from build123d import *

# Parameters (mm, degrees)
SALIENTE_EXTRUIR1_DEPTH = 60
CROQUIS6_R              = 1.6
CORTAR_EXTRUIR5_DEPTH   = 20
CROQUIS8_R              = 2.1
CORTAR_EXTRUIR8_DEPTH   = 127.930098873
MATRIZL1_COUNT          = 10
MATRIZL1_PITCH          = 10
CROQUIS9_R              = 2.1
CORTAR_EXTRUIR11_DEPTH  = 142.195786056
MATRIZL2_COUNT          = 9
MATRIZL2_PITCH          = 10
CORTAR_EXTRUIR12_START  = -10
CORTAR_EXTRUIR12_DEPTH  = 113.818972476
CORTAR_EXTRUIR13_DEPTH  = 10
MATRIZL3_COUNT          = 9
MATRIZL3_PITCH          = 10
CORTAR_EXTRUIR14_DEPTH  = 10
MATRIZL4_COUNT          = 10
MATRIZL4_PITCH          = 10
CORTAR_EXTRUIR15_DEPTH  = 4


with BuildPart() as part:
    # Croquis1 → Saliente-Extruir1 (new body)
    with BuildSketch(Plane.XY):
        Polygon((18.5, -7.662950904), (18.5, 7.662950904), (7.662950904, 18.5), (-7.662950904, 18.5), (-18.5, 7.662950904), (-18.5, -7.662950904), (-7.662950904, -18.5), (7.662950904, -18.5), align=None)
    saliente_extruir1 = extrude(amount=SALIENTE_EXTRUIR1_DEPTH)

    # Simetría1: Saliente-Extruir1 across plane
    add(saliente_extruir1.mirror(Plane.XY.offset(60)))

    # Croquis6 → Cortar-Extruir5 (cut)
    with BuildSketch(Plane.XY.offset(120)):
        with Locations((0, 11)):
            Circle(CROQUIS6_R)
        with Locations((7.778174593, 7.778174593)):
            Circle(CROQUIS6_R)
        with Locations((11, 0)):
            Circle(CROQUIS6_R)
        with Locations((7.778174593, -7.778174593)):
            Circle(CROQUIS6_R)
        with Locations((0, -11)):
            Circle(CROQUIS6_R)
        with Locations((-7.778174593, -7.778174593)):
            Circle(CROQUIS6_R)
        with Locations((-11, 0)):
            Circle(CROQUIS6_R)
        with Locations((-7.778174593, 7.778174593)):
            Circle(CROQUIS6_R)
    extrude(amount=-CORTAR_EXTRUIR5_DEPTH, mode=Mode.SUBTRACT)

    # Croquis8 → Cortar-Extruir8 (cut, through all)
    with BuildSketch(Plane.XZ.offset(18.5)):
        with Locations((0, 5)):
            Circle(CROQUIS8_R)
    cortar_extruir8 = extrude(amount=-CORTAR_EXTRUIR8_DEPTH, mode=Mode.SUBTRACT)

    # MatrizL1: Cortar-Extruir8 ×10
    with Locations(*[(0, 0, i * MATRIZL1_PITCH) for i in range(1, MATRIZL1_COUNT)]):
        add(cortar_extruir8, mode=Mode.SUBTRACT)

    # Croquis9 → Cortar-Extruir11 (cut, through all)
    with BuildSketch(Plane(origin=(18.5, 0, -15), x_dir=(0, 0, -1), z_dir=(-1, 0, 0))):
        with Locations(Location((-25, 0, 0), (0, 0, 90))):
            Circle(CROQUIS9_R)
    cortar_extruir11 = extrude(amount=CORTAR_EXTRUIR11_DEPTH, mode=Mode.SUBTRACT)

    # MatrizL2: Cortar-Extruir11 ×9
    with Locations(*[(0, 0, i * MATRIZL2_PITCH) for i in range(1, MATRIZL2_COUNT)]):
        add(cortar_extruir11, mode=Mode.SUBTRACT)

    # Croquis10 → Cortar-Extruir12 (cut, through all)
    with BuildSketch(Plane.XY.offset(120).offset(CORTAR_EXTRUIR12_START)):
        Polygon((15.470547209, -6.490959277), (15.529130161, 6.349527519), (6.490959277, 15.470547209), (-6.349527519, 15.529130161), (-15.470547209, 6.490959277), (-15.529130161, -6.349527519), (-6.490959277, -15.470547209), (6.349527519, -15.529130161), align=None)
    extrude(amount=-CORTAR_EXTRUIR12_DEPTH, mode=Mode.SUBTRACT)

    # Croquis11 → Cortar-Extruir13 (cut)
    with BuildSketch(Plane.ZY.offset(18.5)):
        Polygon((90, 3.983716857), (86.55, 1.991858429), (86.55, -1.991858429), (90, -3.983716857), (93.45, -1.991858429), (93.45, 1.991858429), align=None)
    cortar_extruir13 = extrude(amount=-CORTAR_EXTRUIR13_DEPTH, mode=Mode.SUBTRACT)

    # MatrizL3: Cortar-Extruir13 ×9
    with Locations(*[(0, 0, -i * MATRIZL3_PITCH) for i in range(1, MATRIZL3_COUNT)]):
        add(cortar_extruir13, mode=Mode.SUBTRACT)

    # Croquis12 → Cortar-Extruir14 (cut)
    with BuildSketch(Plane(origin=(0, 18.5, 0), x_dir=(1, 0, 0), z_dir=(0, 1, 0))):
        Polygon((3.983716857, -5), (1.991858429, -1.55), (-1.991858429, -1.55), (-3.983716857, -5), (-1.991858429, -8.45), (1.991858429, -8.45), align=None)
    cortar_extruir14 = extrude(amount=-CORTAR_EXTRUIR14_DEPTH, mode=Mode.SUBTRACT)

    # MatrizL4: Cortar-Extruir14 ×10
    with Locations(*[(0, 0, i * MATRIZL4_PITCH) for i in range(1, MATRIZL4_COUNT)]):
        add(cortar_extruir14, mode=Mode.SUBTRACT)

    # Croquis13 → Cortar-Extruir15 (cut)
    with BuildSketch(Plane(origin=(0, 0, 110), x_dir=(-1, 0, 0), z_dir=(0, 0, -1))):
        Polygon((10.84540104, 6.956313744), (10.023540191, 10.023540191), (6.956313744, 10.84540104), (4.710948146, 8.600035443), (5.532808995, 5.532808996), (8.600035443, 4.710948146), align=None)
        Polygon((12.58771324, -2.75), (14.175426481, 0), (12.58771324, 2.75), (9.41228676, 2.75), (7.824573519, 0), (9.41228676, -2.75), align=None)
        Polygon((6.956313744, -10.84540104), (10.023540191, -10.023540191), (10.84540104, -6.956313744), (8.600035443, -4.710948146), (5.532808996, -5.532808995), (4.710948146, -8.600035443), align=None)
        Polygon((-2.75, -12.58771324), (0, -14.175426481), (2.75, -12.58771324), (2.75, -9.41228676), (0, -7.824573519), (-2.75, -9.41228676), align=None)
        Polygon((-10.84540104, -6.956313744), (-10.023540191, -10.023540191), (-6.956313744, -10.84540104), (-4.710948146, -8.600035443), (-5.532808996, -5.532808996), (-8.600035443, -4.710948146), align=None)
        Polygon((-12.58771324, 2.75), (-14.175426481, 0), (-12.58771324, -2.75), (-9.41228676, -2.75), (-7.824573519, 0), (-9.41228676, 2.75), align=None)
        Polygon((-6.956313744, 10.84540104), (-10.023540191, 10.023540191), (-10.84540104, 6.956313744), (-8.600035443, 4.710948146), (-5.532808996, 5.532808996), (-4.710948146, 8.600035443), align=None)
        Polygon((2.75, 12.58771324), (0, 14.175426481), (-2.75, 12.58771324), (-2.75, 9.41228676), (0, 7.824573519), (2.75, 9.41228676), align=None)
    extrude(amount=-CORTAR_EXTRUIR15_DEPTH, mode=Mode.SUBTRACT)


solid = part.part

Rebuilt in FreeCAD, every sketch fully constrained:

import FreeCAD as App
import Part
import Sketcher
Q = App.Units.Quantity

doc = App.newDocument("Part")
params = doc.addObject("Spreadsheet::Sheet", "Params")
for row, (alias, value) in enumerate([
    ("pad1_length", "60 mm"),
    ("sketch2_diameter", "3.2 mm"),
    ("pocket1_length", "20 mm"),
    ("sketch3_diameter", "4.2 mm"),
    ("linearpattern_pitch", "10 mm"),
    ("sketch4_diameter", "4.2 mm"),
    ("linearpattern2_pitch", "10 mm"),
    ("pocket5_length", "10 mm"),
    ("linearpattern3_pitch", "10 mm"),
    ("pocket6_length", "10 mm"),
    ("linearpattern4_pitch", "10 mm"),
    ("pocket7_length", "4 mm"),
], start=1):
    params.set(f"A{row}", alias)
    params.set(f"B{row}", "=" + value)
    params.setAlias(f"B{row}", alias)

body = doc.addObject("PartDesign::Body", "Body")

sketch1 = body.newObject("Sketcher::SketchObject", "Sketch")
sketch1.AttachmentSupport = (doc.getObject("XY_Plane"), [""])
sketch1.MapMode = "FlatFace"
sketch1.addGeometry([
    Part.LineSegment(App.Vector(18, -8, 0), App.Vector(18, 8, 0)),
    Part.LineSegment(App.Vector(18, 8, 0), App.Vector(8, 18, 0)),
    Part.LineSegment(App.Vector(8, 18, 0), App.Vector(-8, 18, 0)),
    Part.LineSegment(App.Vector(-8, 18, 0), App.Vector(-18, 8, 0)),
    Part.LineSegment(App.Vector(-18, 8, 0), App.Vector(-18, -8, 0)),
    Part.LineSegment(App.Vector(-18, -8, 0), App.Vector(-8, -18, 0)),
    Part.LineSegment(App.Vector(-8, -18, 0), App.Vector(8, -18, 0)),
    Part.LineSegment(App.Vector(8, -18, 0), App.Vector(18, -8, 0)),
], False)
sketch1.addConstraint([
    Sketcher.Constraint("Coincident", 0, 2, 1, 1),
    Sketcher.Constraint("Coincident", 1, 2, 2, 1),
    Sketcher.Constraint("Coincident", 2, 2, 3, 1),
    Sketcher.Constraint("Coincident", 3, 2, 4, 1),
    Sketcher.Constraint("Coincident", 4, 2, 5, 1),
    Sketcher.Constraint("Coincident", 5, 2, 6, 1),
    Sketcher.Constraint("Coincident", 6, 2, 7, 1),
    Sketcher.Constraint("Coincident", 7, 2, 0, 1),
    Sketcher.Constraint("Vertical", 0),
    Sketcher.Constraint("Horizontal", 2),
    Sketcher.Constraint("Vertical", 4),
    Sketcher.Constraint("Horizontal", 6),
    Sketcher.Constraint("Symmetric", 0, 2, 4, 2, -1, 1),
    Sketcher.Constraint("Symmetric", 1, 2, 5, 2, -1, 1),
    Sketcher.Constraint("Perpendicular", 1, 3),
    Sketcher.Constraint("Perpendicular", 5, 7),
    Sketcher.Constraint("Horizontal", 0, 2, 3, 2),
    Sketcher.Constraint("Horizontal", 4, 2, 7, 2),
    Sketcher.Constraint("Vertical", 2, 2, 5, 2),
    Sketcher.Constraint("Equal", 6, 0),
    Sketcher.Constraint("DistanceX", 3, 2, 0, 2, 37.0),
    Sketcher.Constraint("DistanceX", 2, 2, 2, 1, 15.325902),
])
pad1 = body.newObject("PartDesign::Pad", "Pad")
pad1.Profile = sketch1
pad1.setExpression("Length", "Params.pad1_length")
doc.recompute()

datumplane = body.newObject("PartDesign::Plane", "DatumPlane")
datumplane.AttachmentSupport = (doc.getObject("XY_Plane"), [""])
datumplane.MapMode = "FlatFace"
datumplane.AttachmentOffset = App.Placement(App.Vector(0, 0, 60), App.Rotation())
mirrored = body.newObject("PartDesign::Mirrored", "Mirrored")
mirrored.Originals = [pad1]
mirrored.MirrorPlane = (datumplane, [""])
body.Tip = mirrored

sketch2 = body.newObject("Sketcher::SketchObject", "Sketch001")
sketch2.AttachmentSupport = (doc.getObject("XY_Plane"), [""])
sketch2.MapMode = "FlatFace"
sketch2.AttachmentOffset = App.Placement(App.Vector(0, 0, 120), App.Rotation())
sketch2.addGeometry([
    Part.Circle(App.Vector(0, 11, 0), App.Vector(0, 0, 1), 1.6),
    Part.Circle(App.Vector(7.8, 7.8, 0), App.Vector(0, 0, 1), 1.6),
    Part.Circle(App.Vector(11, 0, 0), App.Vector(0, 0, 1), 1.6),
    Part.Circle(App.Vector(7.8, -7.8, 0), App.Vector(0, 0, 1), 1.6),
    Part.Circle(App.Vector(0, -11, 0), App.Vector(0, 0, 1), 1.6),
    Part.Circle(App.Vector(-7.8, -7.8, 0), App.Vector(0, 0, 1), 1.6),
    Part.Circle(App.Vector(-11, 0, 0), App.Vector(0, 0, 1), 1.6),
    Part.Circle(App.Vector(-7.8, 7.8, 0), App.Vector(0, 0, 1), 1.6),
], False)
sketch2.addConstraint([
    Sketcher.Constraint("Equal", 0, 1),
    Sketcher.Constraint("Equal", 1, 2),
    Sketcher.Constraint("Equal", 2, 3),
    Sketcher.Constraint("Equal", 3, 4),
    Sketcher.Constraint("Equal", 4, 5),
    Sketcher.Constraint("Equal", 5, 6),
    Sketcher.Constraint("Equal", 6, 7),
    Sketcher.Constraint("Symmetric", 0, 3, 4, 3, -1, 1),
    Sketcher.Constraint("Symmetric", 1, 3, 5, 3, -1, 1),
    Sketcher.Constraint("Symmetric", 2, 3, 6, 3, -1, 1),
    Sketcher.Constraint("Symmetric", 3, 3, 7, 3, -1, 1),
    Sketcher.Constraint("Symmetric", 3, 3, 5, 3, -2),
    Sketcher.Constraint("PointOnObject", 0, 3, -2),
    Sketcher.Constraint("PointOnObject", 2, 3, -1),
    Sketcher.Constraint("Diameter", 0, 3.2),
    Sketcher.Constraint("DistanceY", -1, 1, 0, 3, 11.0),
    Sketcher.Constraint("DistanceX", -1, 1, 2, 3, 11.0),
    Sketcher.Constraint("DistanceY", 3, 3, 1, 3, 15.556349),
    Sketcher.Constraint("DistanceX", 5, 3, 3, 3, 15.556349),
])
sketch2.setExpression("Constraints[14]", "Params.sketch2_diameter")
pocket1 = body.newObject("PartDesign::Pocket", "Pocket")
pocket1.Profile = sketch2
pocket1.setExpression("Length", "Params.pocket1_length")

sketch3 = body.newObject("Sketcher::SketchObject", "Sketch002")
sketch3.AttachmentSupport = (doc.getObject("XZ_Plane"), [""])
sketch3.MapMode = "FlatFace"
sketch3.AttachmentOffset = App.Placement(App.Vector(0, 0, 18.5), App.Rotation())
sketch3.addGeometry(Part.Circle(App.Vector(0, 5, 0), App.Vector(0, 0, 1), 2.1), False)
sketch3.addConstraint([
    Sketcher.Constraint("PointOnObject", 0, 3, -2),
    Sketcher.Constraint("Diameter", 0, 4.2),
    Sketcher.Constraint("DistanceY", -1, 1, 0, 3, 5.0),
])
sketch3.setExpression("Constraints[1]", "Params.sketch3_diameter")
pocket2 = body.newObject("PartDesign::Pocket", "Pocket001")
pocket2.Profile = sketch3
pocket2.Type = "ThroughAll"
doc.recompute()

linearpattern = body.newObject("PartDesign::LinearPattern", "LinearPattern")
linearpattern.Originals = [pocket2]
linearpattern.Direction = (doc.getObject("Z_Axis"), [""])
linearpattern.Mode = "offset"
linearpattern.setExpression("Offset", "Params.linearpattern_pitch")
linearpattern.Occurrences = 10
body.Tip = linearpattern

sketch4 = body.newObject("Sketcher::SketchObject", "Sketch003")
sketch4.AttachmentSupport = (doc.getObject("YZ_Plane"), [""])
sketch4.MapMode = "FlatFace"
sketch4.AttachmentOffset = App.Placement(App.Vector(0, 0, 18.5), App.Rotation())
sketch4.addGeometry(Part.Circle(App.Vector(0, 10, 0), App.Vector(0, 0, 1), 2.1), False)
sketch4.addConstraint([
    Sketcher.Constraint("PointOnObject", 0, 3, -2),
    Sketcher.Constraint("Diameter", 0, 4.2),
    Sketcher.Constraint("DistanceY", -1, 1, 0, 3, 10.0),
])
sketch4.setExpression("Constraints[1]", "Params.sketch4_diameter")
pocket3 = body.newObject("PartDesign::Pocket", "Pocket002")
pocket3.Profile = sketch4
pocket3.Type = "ThroughAll"
doc.recompute()

linearpattern2 = body.newObject("PartDesign::LinearPattern", "LinearPattern001")
linearpattern2.Originals = [pocket3]
linearpattern2.Direction = (doc.getObject("Z_Axis"), [""])
linearpattern2.Mode = "offset"
linearpattern2.setExpression("Offset", "Params.linearpattern2_pitch")
linearpattern2.Occurrences = 9
body.Tip = linearpattern2

sketch5 = body.newObject("Sketcher::SketchObject", "Sketch004")
sketch5.AttachmentSupport = (doc.getObject("XY_Plane"), [""])
sketch5.MapMode = "FlatFace"
sketch5.AttachmentOffset = App.Placement(App.Vector(0, 0, 110), App.Rotation())
sketch5.addGeometry([
    Part.LineSegment(App.Vector(15, -6, 0), App.Vector(16, 6, 0)),
    Part.LineSegment(App.Vector(16, 6, 0), App.Vector(6, 15, 0)),
    Part.LineSegment(App.Vector(6, 15, 0), App.Vector(-6, 16, 0)),
    Part.LineSegment(App.Vector(-6, 16, 0), App.Vector(-15, 6, 0)),
    Part.LineSegment(App.Vector(-15, 6, 0), App.Vector(-16, -6, 0)),
    Part.LineSegment(App.Vector(-16, -6, 0), App.Vector(-6, -15, 0)),
    Part.LineSegment(App.Vector(-6, -15, 0), App.Vector(6, -16, 0)),
    Part.LineSegment(App.Vector(6, -16, 0), App.Vector(15, -6, 0)),
], False)
sketch5.addConstraint([
    Sketcher.Constraint("Coincident", 0, 2, 1, 1),
    Sketcher.Constraint("Coincident", 1, 2, 2, 1),
    Sketcher.Constraint("Coincident", 2, 2, 3, 1),
    Sketcher.Constraint("Coincident", 3, 2, 4, 1),
    Sketcher.Constraint("Coincident", 4, 2, 5, 1),
    Sketcher.Constraint("Coincident", 5, 2, 6, 1),
    Sketcher.Constraint("Coincident", 6, 2, 7, 1),
    Sketcher.Constraint("Coincident", 7, 2, 0, 1),
    Sketcher.Constraint("Symmetric", 0, 2, 4, 2, -1, 1),
    Sketcher.Constraint("Symmetric", 1, 2, 5, 2, -1, 1),
    Sketcher.Constraint("Symmetric", 2, 2, 6, 2, -1, 1),
    Sketcher.Constraint("Symmetric", 3, 2, 7, 2, -1, 1),
    Sketcher.Constraint("Perpendicular", 0, 2),
    Sketcher.Constraint("Perpendicular", 1, 3),
    Sketcher.Constraint("Equal", 0, 1),
    Sketcher.Constraint("Equal", 1, 2),
    Sketcher.Constraint("Equal", 2, 3),
    Sketcher.Constraint("Distance", 0, 12.84062),
    Sketcher.Constraint("DistanceX", -1, 1, 0, 2, 15.52913),
    Sketcher.Constraint("DistanceX", -1, 1, 1, 2, 6.490959),
])
pocket4 = body.newObject("PartDesign::Pocket", "Pocket003")
pocket4.Profile = sketch5
pocket4.Type = "ThroughAll"

sketch6 = body.newObject("Sketcher::SketchObject", "Sketch005")
sketch6.AttachmentSupport = (doc.getObject("YZ_Plane"), [""])
sketch6.MapMode = "FlatFace"
sketch6.AttachmentOffset = App.Placement(App.Vector(0, 0, -18.5), App.Rotation())
sketch6.addGeometry([
    Part.LineSegment(App.Vector(4, 90, 0), App.Vector(2, 86.5, 0)),
    Part.LineSegment(App.Vector(2, 86.5, 0), App.Vector(-2, 86.5, 0)),
    Part.LineSegment(App.Vector(-2, 86.5, 0), App.Vector(-4, 90, 0)),
    Part.LineSegment(App.Vector(-4, 90, 0), App.Vector(-2, 93.5, 0)),
    Part.LineSegment(App.Vector(-2, 93.5, 0), App.Vector(2, 93.5, 0)),
    Part.LineSegment(App.Vector(2, 93.5, 0), App.Vector(4, 90, 0)),
], False)
sketch6.addConstraint([
    Sketcher.Constraint("Coincident", 0, 2, 1, 1),
    Sketcher.Constraint("Coincident", 1, 2, 2, 1),
    Sketcher.Constraint("Coincident", 2, 2, 3, 1),
    Sketcher.Constraint("Coincident", 3, 2, 4, 1),
    Sketcher.Constraint("Coincident", 4, 2, 5, 1),
    Sketcher.Constraint("Coincident", 5, 2, 0, 1),
    Sketcher.Constraint("Horizontal", 1),
    Sketcher.Constraint("Horizontal", 4),
    Sketcher.Constraint("Symmetric", 2, 2, 5, 2, -2),
    Sketcher.Constraint("Parallel", 0, 3),
    Sketcher.Constraint("Parallel", 2, 5),
    Sketcher.Constraint("Vertical", 1, 2, 3, 2),
    Sketcher.Constraint("Vertical", 0, 2, 4, 2),
    Sketcher.Constraint("Angle", 0, Q("-120 deg")),
    Sketcher.Constraint("DistanceY", -1, 1, 2, 2, 90.0),
    Sketcher.Constraint("DistanceY", 1, 2, 3, 2, 6.9),
    Sketcher.Constraint("DistanceX", 1, 2, 1, 1, 3.983717),
])
pocket5 = body.newObject("PartDesign::Pocket", "Pocket004")
pocket5.Profile = sketch6
pocket5.setExpression("Length", "Params.pocket5_length")
pocket5.Reversed = True
doc.recompute()

linearpattern3 = body.newObject("PartDesign::LinearPattern", "LinearPattern002")
linearpattern3.Originals = [pocket5]
linearpattern3.Direction = (doc.getObject("Z_Axis"), [""])
linearpattern3.Mode = "offset"
linearpattern3.setExpression("Offset", "Params.linearpattern3_pitch")
linearpattern3.Occurrences = 9
linearpattern3.Reversed = True
body.Tip = linearpattern3

sketch7 = body.newObject("Sketcher::SketchObject", "Sketch006")
sketch7.AttachmentSupport = (doc.getObject("XZ_Plane"), [""])
sketch7.MapMode = "FlatFace"
sketch7.AttachmentOffset = App.Placement(App.Vector(0, 0, -18.5), App.Rotation())
sketch7.addGeometry([
    Part.LineSegment(App.Vector(4, 5, 0), App.Vector(2, 1.6, 0)),
    Part.LineSegment(App.Vector(2, 1.6, 0), App.Vector(-2, 1.6, 0)),
    Part.LineSegment(App.Vector(-2, 1.6, 0), App.Vector(-4, 5, 0)),
    Part.LineSegment(App.Vector(-4, 5, 0), App.Vector(-2, 8.4, 0)),
    Part.LineSegment(App.Vector(-2, 8.4, 0), App.Vector(2, 8.4, 0)),
    Part.LineSegment(App.Vector(2, 8.4, 0), App.Vector(4, 5, 0)),
], False)
sketch7.addConstraint([
    Sketcher.Constraint("Coincident", 0, 2, 1, 1),
    Sketcher.Constraint("Coincident", 1, 2, 2, 1),
    Sketcher.Constraint("Coincident", 2, 2, 3, 1),
    Sketcher.Constraint("Coincident", 3, 2, 4, 1),
    Sketcher.Constraint("Coincident", 4, 2, 5, 1),
    Sketcher.Constraint("Coincident", 5, 2, 0, 1),
    Sketcher.Constraint("Horizontal", 1),
    Sketcher.Constraint("Horizontal", 4),
    Sketcher.Constraint("Symmetric", 2, 2, 5, 2, -2),
    Sketcher.Constraint("Parallel", 0, 3),
    Sketcher.Constraint("Parallel", 2, 5),
    Sketcher.Constraint("Vertical", 1, 2, 3, 2),
    Sketcher.Constraint("Vertical", 0, 2, 4, 2),
    Sketcher.Constraint("Angle", 0, Q("-120 deg")),
    Sketcher.Constraint("DistanceY", -1, 1, 2, 2, 5.0),
    Sketcher.Constraint("DistanceY", 1, 2, 3, 2, 6.9),
    Sketcher.Constraint("DistanceX", 1, 2, 1, 1, 3.983717),
])
pocket6 = body.newObject("PartDesign::Pocket", "Pocket005")
pocket6.Profile = sketch7
pocket6.setExpression("Length", "Params.pocket6_length")
pocket6.Reversed = True
doc.recompute()

linearpattern4 = body.newObject("PartDesign::LinearPattern", "LinearPattern003")
linearpattern4.Originals = [pocket6]
linearpattern4.Direction = (doc.getObject("Z_Axis"), [""])
linearpattern4.Mode = "offset"
linearpattern4.setExpression("Offset", "Params.linearpattern4_pitch")
linearpattern4.Occurrences = 10
body.Tip = linearpattern4

sketch8 = body.newObject("Sketcher::SketchObject", "Sketch007")
sketch8.AttachmentSupport = (doc.getObject("XY_Plane"), [""])
sketch8.MapMode = "FlatFace"
sketch8.AttachmentOffset = App.Placement(App.Vector(0, 0, 110), App.Rotation())
sketch8.addGeometry([
    Part.LineSegment(App.Vector(-10.8, 7, 0), App.Vector(-10, 10, 0)),
    Part.LineSegment(App.Vector(-10, 10, 0), App.Vector(-7, 10.8, 0)),
    Part.LineSegment(App.Vector(-7, 10.8, 0), App.Vector(-4.7, 8.6, 0)),
    Part.LineSegment(App.Vector(-4.7, 8.6, 0), App.Vector(-5.5, 5.5, 0)),
    Part.LineSegment(App.Vector(-5.5, 5.5, 0), App.Vector(-8.6, 4.7, 0)),
    Part.LineSegment(App.Vector(-8.6, 4.7, 0), App.Vector(-10.8, 7, 0)),
    Part.LineSegment(App.Vector(-12.6, -2.8, 0), App.Vector(-14.2, 0, 0)),
    Part.LineSegment(App.Vector(-14.2, 0, 0), App.Vector(-12.6, 2.8, 0)),
    Part.LineSegment(App.Vector(-12.6, 2.8, 0), App.Vector(-9.4, 2.8, 0)),
    Part.LineSegment(App.Vector(-9.4, 2.8, 0), App.Vector(-7.8, 0, 0)),
    Part.LineSegment(App.Vector(-7.8, 0, 0), App.Vector(-9.4, -2.8, 0)),
    Part.LineSegment(App.Vector(-9.4, -2.8, 0), App.Vector(-12.6, -2.8, 0)),
    Part.LineSegment(App.Vector(-7, -10.8, 0), App.Vector(-10, -10, 0)),
    Part.LineSegment(App.Vector(-10, -10, 0), App.Vector(-10.8, -7, 0)),
    Part.LineSegment(App.Vector(-10.8, -7, 0), App.Vector(-8.6, -4.7, 0)),
    Part.LineSegment(App.Vector(-8.6, -4.7, 0), App.Vector(-5.5, -5.5, 0)),
    Part.LineSegment(App.Vector(-5.5, -5.5, 0), App.Vector(-4.7, -8.6, 0)),
    Part.LineSegment(App.Vector(-4.7, -8.6, 0), App.Vector(-7, -10.8, 0)),
    Part.LineSegment(App.Vector(2.8, -12.6, 0), App.Vector(0, -14.2, 0)),
    Part.LineSegment(App.Vector(0, -14.2, 0), App.Vector(-2.8, -12.6, 0)),
    Part.LineSegment(App.Vector(-2.8, -12.6, 0), App.Vector(-2.8, -9.4, 0)),
    Part.LineSegment(App.Vector(-2.8, -9.4, 0), App.Vector(0, -7.8, 0)),
    Part.LineSegment(App.Vector(0, -7.8, 0), App.Vector(2.8, -9.4, 0)),
    Part.LineSegment(App.Vector(2.8, -9.4, 0), App.Vector(2.8, -12.6, 0)),
    Part.LineSegment(App.Vector(10.8, -7, 0), App.Vector(10, -10, 0)),
    Part.LineSegment(App.Vector(10, -10, 0), App.Vector(7, -10.8, 0)),
    Part.LineSegment(App.Vector(7, -10.8, 0), App.Vector(4.7, -8.6, 0)),
    Part.LineSegment(App.Vector(4.7, -8.6, 0), App.Vector(5.5, -5.5, 0)),
    Part.LineSegment(App.Vector(5.5, -5.5, 0), App.Vector(8.6, -4.7, 0)),
    Part.LineSegment(App.Vector(8.6, -4.7, 0), App.Vector(10.8, -7, 0)),
    Part.LineSegment(App.Vector(12.6, 2.8, 0), App.Vector(14.2, 0, 0)),
    Part.LineSegment(App.Vector(14.2, 0, 0), App.Vector(12.6, -2.8, 0)),
    Part.LineSegment(App.Vector(12.6, -2.8, 0), App.Vector(9.4, -2.8, 0)),
    Part.LineSegment(App.Vector(9.4, -2.8, 0), App.Vector(7.8, 0, 0)),
    Part.LineSegment(App.Vector(7.8, 0, 0), App.Vector(9.4, 2.8, 0)),
    Part.LineSegment(App.Vector(9.4, 2.8, 0), App.Vector(12.6, 2.8, 0)),
    Part.LineSegment(App.Vector(7, 10.8, 0), App.Vector(10, 10, 0)),
    Part.LineSegment(App.Vector(10, 10, 0), App.Vector(10.8, 7, 0)),
    Part.LineSegment(App.Vector(10.8, 7, 0), App.Vector(8.6, 4.7, 0)),
    Part.LineSegment(App.Vector(8.6, 4.7, 0), App.Vector(5.5, 5.5, 0)),
    Part.LineSegment(App.Vector(5.5, 5.5, 0), App.Vector(4.7, 8.6, 0)),
    Part.LineSegment(App.Vector(4.7, 8.6, 0), App.Vector(7, 10.8, 0)),
    Part.LineSegment(App.Vector(-2.8, 12.6, 0), App.Vector(0, 14.2, 0)),
    Part.LineSegment(App.Vector(0, 14.2, 0), App.Vector(2.8, 12.6, 0)),
    Part.LineSegment(App.Vector(2.8, 12.6, 0), App.Vector(2.8, 9.4, 0)),
    Part.LineSegment(App.Vector(2.8, 9.4, 0), App.Vector(0, 7.8, 0)),
    Part.LineSegment(App.Vector(0, 7.8, 0), App.Vector(-2.8, 9.4, 0)),
    Part.LineSegment(App.Vector(-2.8, 9.4, 0), App.Vector(-2.8, 12.6, 0)),
], False)
sketch8.addConstraint([
    Sketcher.Constraint("Coincident", 0, 2, 1, 1),
    Sketcher.Constraint("Coincident", 1, 2, 2, 1),
    Sketcher.Constraint("Coincident", 2, 2, 3, 1),
    Sketcher.Constraint("Coincident", 3, 2, 4, 1),
    Sketcher.Constraint("Coincident", 4, 2, 5, 1),
    Sketcher.Constraint("Coincident", 5, 2, 0, 1),
    Sketcher.Constraint("Coincident", 6, 2, 7, 1),
    Sketcher.Constraint("Coincident", 7, 2, 8, 1),
    Sketcher.Constraint("Coincident", 8, 2, 9, 1),
    Sketcher.Constraint("Coincident", 9, 2, 10, 1),
    Sketcher.Constraint("Coincident", 10, 2, 11, 1),
    Sketcher.Constraint("Coincident", 11, 2, 6, 1),
    Sketcher.Constraint("Coincident", 12, 2, 13, 1),
    Sketcher.Constraint("Coincident", 13, 2, 14, 1),
    Sketcher.Constraint("Coincident", 14, 2, 15, 1),
    Sketcher.Constraint("Coincident", 15, 2, 16, 1),
    Sketcher.Constraint("Coincident", 16, 2, 17, 1),
    Sketcher.Constraint("Coincident", 17, 2, 12, 1),
    Sketcher.Constraint("Coincident", 18, 2, 19, 1),
    Sketcher.Constraint("Coincident", 19, 2, 20, 1),
    Sketcher.Constraint("Coincident", 20, 2, 21, 1),
    Sketcher.Constraint("Coincident", 21, 2, 22, 1),
    Sketcher.Constraint("Coincident", 22, 2, 23, 1),
    Sketcher.Constraint("Coincident", 23, 2, 18, 1),
    Sketcher.Constraint("Coincident", 24, 2, 25, 1),
    Sketcher.Constraint("Coincident", 25, 2, 26, 1),
    Sketcher.Constraint("Coincident", 26, 2, 27, 1),
    Sketcher.Constraint("Coincident", 27, 2, 28, 1),
    Sketcher.Constraint("Coincident", 28, 2, 29, 1),
    Sketcher.Constraint("Coincident", 29, 2, 24, 1),
    Sketcher.Constraint("Coincident", 30, 2, 31, 1),
    Sketcher.Constraint("Coincident", 31, 2, 32, 1),
    Sketcher.Constraint("Coincident", 32, 2, 33, 1),
    Sketcher.Constraint("Coincident", 33, 2, 34, 1),
    Sketcher.Constraint("Coincident", 34, 2, 35, 1),
    Sketcher.Constraint("Coincident", 35, 2, 30, 1),
    Sketcher.Constraint("Coincident", 36, 2, 37, 1),
    Sketcher.Constraint("Coincident", 37, 2, 38, 1),
    Sketcher.Constraint("Coincident", 38, 2, 39, 1),
    Sketcher.Constraint("Coincident", 39, 2, 40, 1),
    Sketcher.Constraint("Coincident", 40, 2, 41, 1),
    Sketcher.Constraint("Coincident", 41, 2, 36, 1),
    Sketcher.Constraint("Coincident", 42, 2, 43, 1),
    Sketcher.Constraint("Coincident", 43, 2, 44, 1),
    Sketcher.Constraint("Coincident", 44, 2, 45, 1),
    Sketcher.Constraint("Coincident", 45, 2, 46, 1),
    Sketcher.Constraint("Coincident", 46, 2, 47, 1),
    Sketcher.Constraint("Coincident", 47, 2, 42, 1),
    Sketcher.Constraint("Horizontal", 8),
    Sketcher.Constraint("Horizontal", 11),
    Sketcher.Constraint("Vertical", 20),
    Sketcher.Constraint("Vertical", 23),
    Sketcher.Constraint("Horizontal", 32),
    Sketcher.Constraint("Horizontal", 35),
    Sketcher.Constraint("Vertical", 44),
    Sketcher.Constraint("Vertical", 47),
    Sketcher.Constraint("Symmetric", 0, 2, 24, 2, -1, 1),
    Sketcher.Constraint("Symmetric", 1, 2, 25, 2, -1, 1),
    Sketcher.Constraint("Symmetric", 2, 2, 26, 2, -1, 1),
    Sketcher.Constraint("Symmetric", 3, 2, 27, 2, -1, 1),
    Sketcher.Constraint("Symmetric", 4, 2, 28, 2, -1, 1),
    Sketcher.Constraint("Symmetric", 5, 2, 29, 2, -1, 1),
    Sketcher.Constraint("Symmetric", 6, 2, 30, 2, -1, 1),
    Sketcher.Constraint("Symmetric", 7, 2, 31, 2, -1, 1),
    Sketcher.Constraint("Symmetric", 9, 2, 33, 2, -1, 1),
    Sketcher.Constraint("Symmetric", 10, 2, 34, 2, -1, 1),
    Sketcher.Constraint("Symmetric", 12, 2, 36, 2, -1, 1),
    Sketcher.Constraint("Symmetric", 13, 2, 37, 2, -1, 1),
    Sketcher.Constraint("Symmetric", 14, 2, 38, 2, -1, 1),
    Sketcher.Constraint("Symmetric", 15, 2, 39, 2, -1, 1),
    Sketcher.Constraint("Symmetric", 16, 2, 40, 2, -1, 1),
    Sketcher.Constraint("Symmetric", 17, 2, 41, 2, -1, 1),
    Sketcher.Constraint("Symmetric", 18, 2, 42, 2, -1, 1),
    Sketcher.Constraint("Symmetric", 19, 2, 43, 2, -1, 1),
    Sketcher.Constraint("Symmetric", 21, 2, 45, 2, -1, 1),
    Sketcher.Constraint("Symmetric", 22, 2, 46, 2, -1, 1),
    Sketcher.Constraint("Symmetric", 20, 2, 22, 2, -2),
    Sketcher.Constraint("Symmetric", 12, 2, 24, 2, -2),
    Sketcher.Constraint("Symmetric", 17, 2, 25, 2, -2),
    Sketcher.Constraint("Symmetric", 16, 2, 26, 2, -2),
    Sketcher.Constraint("Symmetric", 15, 2, 27, 2, -2),
    Sketcher.Constraint("Symmetric", 14, 2, 28, 2, -2),
    Sketcher.Constraint("Symmetric", 13, 2, 29, 2, -2),
    Sketcher.Constraint("Symmetric", 11, 2, 31, 2, -2),
    Sketcher.Constraint("PointOnObject", 6, 2, -1),
    Sketcher.Constraint("PointOnObject", 9, 2, -1),
    Sketcher.Constraint("PointOnObject", 18, 2, -2),
    Sketcher.Constraint("PointOnObject", 21, 2, -2),
    Sketcher.Constraint("Parallel", 0, 3),
    Sketcher.Constraint("Parallel", 1, 4),
    Sketcher.Constraint("Parallel", 2, 5),
    Sketcher.Constraint("Parallel", 6, 9),
    Sketcher.Constraint("Parallel", 7, 10),
    Sketcher.Constraint("Perpendicular", 3, 12),
    Sketcher.Constraint("Perpendicular", 5, 14),
    Sketcher.Constraint("Perpendicular", 9, 18),
    Sketcher.Constraint("Perpendicular", 10, 19),
    Sketcher.Constraint("Parallel", 18, 21),
    Sketcher.Constraint("Perpendicular", 21, 30),
    Sketcher.Constraint("Parallel", 30, 33),
    Sketcher.Constraint("Perpendicular", 33, 42),
    Sketcher.Constraint("Parallel", 42, 45),
    Sketcher.Constraint("Equal", 35, 20),
    Sketcher.Constraint("Equal", 0, 1),
    Sketcher.Constraint("Equal", 1, 2),
    Sketcher.Constraint("Equal", 2, 3),
    Sketcher.Constraint("Equal", 5, 6),
    Sketcher.Constraint("Equal", 17, 18),
    Sketcher.Constraint("Angle", 0, Q("75 deg")),
    Sketcher.Constraint("Angle", 6, Q("120 deg")),
    Sketcher.Constraint("DistanceY", 10, 2, 8, 2, 5.5),
    Sketcher.Constraint("DistanceY", -1, 1, 1, 2, 10.845401),
    Sketcher.Constraint("DistanceX", 5, 2, -1, 1, 10.845401),
    Sketcher.Constraint("DistanceX", 8, 1, 8, 2, 3.175426),
    Sketcher.Constraint("DistanceX", 6, 2, 4, 2, 5.575391),
    Sketcher.Constraint("DistanceY", 18, 2, 16, 2, 5.575391),
])
pocket7 = body.newObject("PartDesign::Pocket", "Pocket006")
pocket7.Profile = sketch8
pocket7.setExpression("Length", "Params.pocket7_length")
pocket7.Reversed = True

doc.recompute()
